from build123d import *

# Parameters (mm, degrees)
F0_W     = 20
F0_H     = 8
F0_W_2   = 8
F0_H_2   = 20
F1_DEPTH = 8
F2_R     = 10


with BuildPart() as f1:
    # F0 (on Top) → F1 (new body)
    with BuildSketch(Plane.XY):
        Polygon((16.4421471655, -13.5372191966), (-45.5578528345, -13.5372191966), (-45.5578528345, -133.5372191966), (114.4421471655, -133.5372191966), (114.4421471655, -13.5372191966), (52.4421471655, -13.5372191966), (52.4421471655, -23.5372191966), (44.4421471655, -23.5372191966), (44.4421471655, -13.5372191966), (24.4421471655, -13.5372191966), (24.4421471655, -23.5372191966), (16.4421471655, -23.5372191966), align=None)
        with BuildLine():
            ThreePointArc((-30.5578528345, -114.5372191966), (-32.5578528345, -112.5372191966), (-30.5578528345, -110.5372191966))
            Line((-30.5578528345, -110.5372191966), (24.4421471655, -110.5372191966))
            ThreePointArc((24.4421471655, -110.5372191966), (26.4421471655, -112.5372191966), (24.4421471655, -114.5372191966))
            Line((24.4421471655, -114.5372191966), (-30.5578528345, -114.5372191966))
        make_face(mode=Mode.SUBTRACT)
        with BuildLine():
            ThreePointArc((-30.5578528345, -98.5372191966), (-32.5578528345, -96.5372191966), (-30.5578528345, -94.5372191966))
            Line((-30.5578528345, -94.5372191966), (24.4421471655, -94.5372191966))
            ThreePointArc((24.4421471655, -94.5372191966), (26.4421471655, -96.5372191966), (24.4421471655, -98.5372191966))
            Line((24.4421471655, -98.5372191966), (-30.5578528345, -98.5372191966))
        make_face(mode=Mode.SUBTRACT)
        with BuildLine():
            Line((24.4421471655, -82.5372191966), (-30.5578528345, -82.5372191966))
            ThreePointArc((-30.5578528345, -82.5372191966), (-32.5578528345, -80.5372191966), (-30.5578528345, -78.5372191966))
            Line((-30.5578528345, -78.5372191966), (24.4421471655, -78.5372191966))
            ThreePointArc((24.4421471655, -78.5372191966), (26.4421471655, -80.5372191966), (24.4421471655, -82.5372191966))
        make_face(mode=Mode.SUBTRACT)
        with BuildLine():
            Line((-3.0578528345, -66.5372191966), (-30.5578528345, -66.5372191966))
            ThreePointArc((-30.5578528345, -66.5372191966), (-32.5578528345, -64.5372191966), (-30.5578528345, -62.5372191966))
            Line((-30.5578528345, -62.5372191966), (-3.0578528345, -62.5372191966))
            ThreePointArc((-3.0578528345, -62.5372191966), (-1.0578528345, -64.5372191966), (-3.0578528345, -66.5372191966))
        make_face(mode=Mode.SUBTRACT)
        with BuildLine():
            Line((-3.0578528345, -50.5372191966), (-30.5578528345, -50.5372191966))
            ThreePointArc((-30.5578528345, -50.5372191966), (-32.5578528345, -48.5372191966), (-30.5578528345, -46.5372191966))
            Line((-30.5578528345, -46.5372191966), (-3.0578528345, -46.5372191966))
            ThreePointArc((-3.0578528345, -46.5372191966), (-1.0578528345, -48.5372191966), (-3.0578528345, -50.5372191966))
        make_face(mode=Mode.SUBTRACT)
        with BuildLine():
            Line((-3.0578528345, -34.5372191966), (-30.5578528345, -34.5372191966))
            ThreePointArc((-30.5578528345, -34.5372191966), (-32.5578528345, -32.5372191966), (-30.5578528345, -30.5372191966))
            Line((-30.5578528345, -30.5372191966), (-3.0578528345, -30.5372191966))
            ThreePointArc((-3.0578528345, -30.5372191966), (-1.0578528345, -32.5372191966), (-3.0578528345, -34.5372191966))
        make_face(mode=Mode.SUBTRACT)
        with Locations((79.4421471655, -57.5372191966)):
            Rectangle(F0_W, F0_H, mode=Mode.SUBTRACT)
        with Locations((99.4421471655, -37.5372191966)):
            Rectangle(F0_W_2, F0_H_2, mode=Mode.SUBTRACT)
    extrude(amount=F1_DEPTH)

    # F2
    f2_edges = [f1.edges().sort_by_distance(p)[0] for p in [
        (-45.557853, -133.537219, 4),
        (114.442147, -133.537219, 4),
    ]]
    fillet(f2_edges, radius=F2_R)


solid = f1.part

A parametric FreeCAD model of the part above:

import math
import FreeCAD as App
import Part
import Sketcher

V = App.Vector


def edges_at(feature, points):
    """Names of the edges that pass closest to the given points."""
    edges = feature.Shape.Edges
    near = lambda p: min(range(len(edges)), key=lambda i: edges[i].distToShape(Part.Vertex(*p))[0])
    return sorted({f"Edge{near(p) + 1}" for p in points})

doc = App.newDocument("Part")
params = doc.addObject("Spreadsheet::Sheet", "Params")
for row, (alias, value) in enumerate([
    ("sketch1_radius", "2 mm"),
    ("sketch1_width", "62 mm"),
    ("sketch1_width2", "160 mm"),
    ("sketch1_width3", "8 mm"),
    ("sketch1_width4", "55 mm"),
    ("pad1_length", "8 mm"),
    ("fillet_radius", "10 mm"),
], start=1):
    params.set(f"A{row}", alias)
    params.set(f"B{row}", "=" + value)
    params.setAlias(f"B{row}", alias)

body = doc.addObject("PartDesign::Body", "Body")

# Sketch on XY plane
sketch1 = body.newObject("Sketcher::SketchObject", "Sketch")
sketch1.AttachmentSupport = (doc.getObject("XY_Plane"), [""])
sketch1.MapMode = "FlatFace"
sketch1.addGeometry(Part.LineSegment(V(16.442147, -13.537219, 0), V(-45.557853, -13.537219, 0)), False)
sketch1.addGeometry(Part.LineSegment(V(-45.557853, -13.537219, 0), V(-45.557853, -133.537219, 0)), False)
sketch1.addGeometry(Part.LineSegment(V(-45.557853, -133.537219, 0), V(114.442147, -133.537219, 0)), False)
sketch1.addGeometry(Part.LineSegment(V(114.442147, -133.537219, 0), V(114.442147, -13.537219, 0)), False)
sketch1.addGeometry(Part.LineSegment(V(114.442147, -13.537219, 0), V(52.442147, -13.537219, 0)), False)
sketch1.addGeometry(Part.LineSegment(V(52.442147, -13.537219, 0), V(52.442147, -23.537219, 0)), False)
sketch1.addGeometry(Part.LineSegment(V(52.442147, -23.537219, 0), V(44.442147, -23.537219, 0)), False)
sketch1.addGeometry(Part.LineSegment(V(44.442147, -23.537219, 0), V(44.442147, -13.537219, 0)), False)
sketch1.addGeometry(Part.LineSegment(V(44.442147, -13.537219, 0), V(24.442147, -13.537219, 0)), False)
sketch1.addGeometry(Part.LineSegment(V(24.442147, -13.537219, 0), V(24.442147, -23.537219, 0)), False)
sketch1.addGeometry(Part.LineSegment(V(24.442147, -23.537219, 0), V(16.442147, -23.537219, 0)), False)
sketch1.addGeometry(Part.LineSegment(V(16.442147, -23.537219, 0), V(16.442147, -13.537219, 0)), False)
sketch1.addGeometry(Part.LineSegment(V(24.442147, -114.537219, 0), V(-30.557853, -114.537219, 0)), False)
sketch1.addGeometry(Part.ArcOfCircle(Part.Circle(V(-30.557853, -112.537219, 0), V(0, 0, 1), 2), math.radians(90), math.radians(270)), False)
sketch1.addGeometry(Part.LineSegment(V(-30.557853, -110.537219, 0), V(24.442147, -110.537219, 0)), False)
sketch1.addGeometry(Part.ArcOfCircle(Part.Circle(V(24.442147, -112.537219, 0), V(0, 0, 1), 2), math.radians(-90), math.radians(90)), False)
sketch1.addGeometry(Part.LineSegment(V(24.442147, -98.537219, 0), V(-30.557853, -98.537219, 0)), False)
sketch1.addGeometry(Part.ArcOfCircle(Part.Circle(V(-30.557853, -96.537219, 0), V(0, 0, 1), 2), math.radians(90), math.radians(270)), False)
sketch1.addGeometry(Part.LineSegment(V(-30.557853, -94.537219, 0), V(24.442147, -94.537219, 0)), False)
sketch1.addGeometry(Part.ArcOfCircle(Part.Circle(V(24.442147, -96.537219, 0), V(0, 0, 1), 2), math.radians(-90), math.radians(90)), False)
sketch1.addGeometry(Part.ArcOfCircle(Part.Circle(V(24.442147, -80.537219, 0), V(0, 0, 1), 2), math.radians(-90), math.radians(90)), False)
sketch1.addGeometry(Part.LineSegment(V(24.442147, -82.537219, 0), V(-30.557853, -82.537219, 0)), False)
sketch1.addGeometry(Part.ArcOfCircle(Part.Circle(V(-30.557853, -80.537219, 0), V(0, 0, 1), 2), math.radians(90), math.radians(270)), False)
sketch1.addGeometry(Part.LineSegment(V(-30.557853, -78.537219, 0), V(24.442147, -78.537219, 0)), False)
sketch1.addGeometry(Part.ArcOfCircle(Part.Circle(V(-3.057853, -64.537219, 0), V(0, 0, 1), 2), math.radians(-90), math.radians(90)), False)
sketch1.addGeometry(Part.LineSegment(V(-3.057853, -66.537219, 0), V(-30.557853, -66.537219, 0)), False)
sketch1.addGeometry(Part.ArcOfCircle(Part.Circle(V(-30.557853, -64.537219, 0), V(0, 0, 1), 2), math.radians(90), math.radians(270)), False)
sketch1.addGeometry(Part.LineSegment(V(-30.557853, -62.537219, 0), V(-3.057853, -62.537219, 0)), False)
sketch1.addGeometry(Part.ArcOfCircle(Part.Circle(V(-3.057853, -48.537219, 0), V(0, 0, 1), 2), math.radians(-90), math.radians(90)), False)
sketch1.addGeometry(Part.LineSegment(V(-3.057853, -50.537219, 0), V(-30.557853, -50.537219, 0)), False)
sketch1.addGeometry(Part.ArcOfCircle(Part.Circle(V(-30.557853, -48.537219, 0), V(0, 0, 1), 2), math.radians(90), math.radians(270)), False)
sketch1.addGeometry(Part.LineSegment(V(-30.557853, -46.537219, 0), V(-3.057853, -46.537219, 0)), False)
sketch1.addGeometry(Part.ArcOfCircle(Part.Circle(V(-3.057853, -32.537219, 0), V(0, 0, 1), 2), math.radians(-90), math.radians(90)), False)
sketch1.addGeometry(Part.LineSegment(V(-3.057853, -34.537219, 0), V(-30.557853, -34.537219, 0)), False)
sketch1.addGeometry(Part.ArcOfCircle(Part.Circle(V(-30.557853, -32.537219, 0), V(0, 0, 1), 2), math.radians(90), math.radians(270)), False)
sketch1.addGeometry(Part.LineSegment(V(-30.557853, -30.537219, 0), V(-3.057853, -30.537219, 0)), False)
sketch1.addGeometry(Part.LineSegment(V(89.442147, -61.537219, 0), V(69.442147, -61.537219, 0)), False)
sketch1.addGeometry(Part.LineSegment(V(69.442147, -61.537219, 0), V(69.442147, -53.537219, 0)), False)
sketch1.addGeometry(Part.LineSegment(V(69.442147, -53.537219, 0), V(89.442147, -53.537219, 0)), False)
sketch1.addGeometry(Part.LineSegment(V(89.442147, -53.537219, 0), V(89.442147, -61.537219, 0)), False)
sketch1.addGeometry(Part.LineSegment(V(103.442147, -47.537219, 0), V(95.442147, -47.537219, 0)), False)
sketch1.addGeometry(Part.LineSegment(V(95.442147, -47.537219, 0), V(95.442147, -27.537219, 0)), False)
sketch1.addGeometry(Part.LineSegment(V(95.442147, -27.537219, 0), V(103.442147, -27.537219, 0)), False)
sketch1.addGeometry(Part.LineSegment(V(103.442147, -27.537219, 0), V(103.442147, -47.537219, 0)), False)
sketch1.addConstraint(Sketcher.Constraint("Coincident", 0, 2, 1, 1))
sketch1.addConstraint(Sketcher.Constraint("Coincident", 1, 2, 2, 1))
sketch1.addConstraint(Sketcher.Constraint("Coincident", 2, 2, 3, 1))
sketch1.addConstraint(Sketcher.Constraint("Coincident", 3, 2, 4, 1))
sketch1.addConstraint(Sketcher.Constraint("Coincident", 4, 2, 5, 1))
sketch1.addConstraint(Sketcher.Constraint("Coincident", 5, 2, 6, 1))
sketch1.addConstraint(Sketcher.Constraint("Coincident", 6, 2, 7, 1))
sketch1.addConstraint(Sketcher.Constraint("Coincident", 7, 2, 8, 1))
sketch1.addConstraint(Sketcher.Constraint("Coincident", 8, 2, 9, 1))
sketch1.addConstraint(Sketcher.Constraint("Coincident", 9, 2, 10, 1))
sketch1.addConstraint(Sketcher.Constraint("Coincident", 10, 2, 11, 1))
sketch1.addConstraint(Sketcher.Constraint("Coincident", 11, 2, 0, 1))
sketch1.addConstraint(Sketcher.Constraint("Tangent", 12, 2, 13, 2))
sketch1.addConstraint(Sketcher.Constraint("Tangent", 13, 1, 14, 1))
sketch1.addConstraint(Sketcher.Constraint("Tangent", 14, 2, 15, 2))
sketch1.addConstraint(Sketcher.Constraint("Tangent", 15, 1, 12, 1))
sketch1.addConstraint(Sketcher.Constraint("Tangent", 16, 2, 17, 2))
sketch1.addConstraint(Sketcher.Constraint("Tangent", 17, 1, 18, 1))
sketch1.addConstraint(Sketcher.Constraint("Tangent", 18, 2, 19, 2))
sketch1.addConstraint(Sketcher.Constraint("Tangent", 19, 1, 16, 1))
sketch1.addConstraint(Sketcher.Constraint("Tangent", 20, 1, 21, 1))
sketch1.addConstraint(Sketcher.Constraint("Tangent", 21, 2, 22, 2))
sketch1.addConstraint(Sketcher.Constraint("Tangent", 22, 1, 23, 1))
sketch1.addConstraint(Sketcher.Constraint("Tangent", 23, 2, 20, 2))
sketch1.addConstraint(Sketcher.Constraint("Tangent", 24, 1, 25, 1))
sketch1.addConstraint(Sketcher.Constraint("Tangent", 25, 2, 26, 2))
sketch1.addConstraint(Sketcher.Constraint("Tangent", 26, 1, 27, 1))
sketch1.addConstraint(Sketcher.Constraint("Tangent", 27, 2, 24, 2))
sketch1.addConstraint(Sketcher.Constraint("Tangent", 28, 1, 29, 1))
sketch1.addConstraint(Sketcher.Constraint("Tangent", 29, 2, 30, 2))
sketch1.addConstraint(Sketcher.Constraint("Tangent", 30, 1, 31, 1))
sketch1.addConstraint(Sketcher.Constraint("Tangent", 31, 2, 28, 2))
sketch1.addConstraint(Sketcher.Constraint("Tangent", 32, 1, 33, 1))
sketch1.addConstraint(Sketcher.Constraint("Tangent", 33, 2, 34, 2))
sketch1.addConstraint(Sketcher.Constraint("Tangent", 34, 1, 35, 1))
sketch1.addConstraint(Sketcher.Constraint("Tangent", 35, 2, 32, 2))
sketch1.addConstraint(Sketcher.Constraint("Coincident", 36, 2, 37, 1))
sketch1.addConstraint(Sketcher.Constraint("Coincident", 37, 2, 38, 1))
sketch1.addConstraint(Sketcher.Constraint("Coincident", 38, 2, 39, 1))
sketch1.addConstraint(Sketcher.Constraint("Coincident", 39, 2, 36, 1))
sketch1.addConstraint(Sketcher.Constraint("Coincident", 40, 2, 41, 1))
sketch1.addConstraint(Sketcher.Constraint("Coincident", 41, 2, 42, 1))
sketch1.addConstraint(Sketcher.Constraint("Coincident", 42, 2, 43, 1))
sketch1.addConstraint(Sketcher.Constraint("Coincident", 43, 2, 40, 1))
sketch1.addConstraint(Sketcher.Constraint("Horizontal", 0))
sketch1.addConstraint(Sketcher.Constraint("Vertical", 1))
sketch1.addConstraint(Sketcher.Constraint("Horizontal", 2))
sketch1.addConstraint(Sketcher.Constraint("Vertical", 3))
sketch1.addConstraint(Sketcher.Constraint("Horizontal", 4))
sketch1.addConstraint(Sketcher.Constraint("Vertical", 5))
sketch1.addConstraint(Sketcher.Constraint("Horizontal", 6))
sketch1.addConstraint(Sketcher.Constraint("Vertical", 7))
sketch1.addConstraint(Sketcher.Constraint("Horizontal", 8))
sketch1.addConstraint(Sketcher.Constraint("Vertical", 9))
sketch1.addConstraint(Sketcher.Constraint("Horizontal", 10))
sketch1.addConstraint(Sketcher.Constraint("Vertical", 11))
sketch1.addConstraint(Sketcher.Constraint("Horizontal", 12))
sketch1.addConstraint(Sketcher.Constraint("Horizontal", 14))
sketch1.addConstraint(Sketcher.Constraint("Horizontal", 16))
sketch1.addConstraint(Sketcher.Constraint("Horizontal", 18))
sketch1.addConstraint(Sketcher.Constraint("Horizontal", 21))
sketch1.addConstraint(Sketcher.Constraint("Horizontal", 23))
sketch1.addConstraint(Sketcher.Constraint("Horizontal", 25))
sketch1.addConstraint(Sketcher.Constraint("Horizontal", 27))
sketch1.addConstraint(Sketcher.Constraint("Horizontal", 29))
sketch1.addConstraint(Sketcher.Constraint("Horizontal", 31))
sketch1.addConstraint(Sketcher.Constraint("Horizontal", 33))
sketch1.addConstraint(Sketcher.Constraint("Horizontal", 35))
sketch1.addConstraint(Sketcher.Constraint("Horizontal", 36))
sketch1.addConstraint(Sketcher.Constraint("Vertical", 37))
sketch1.addConstraint(Sketcher.Constraint("Horizontal", 38))
sketch1.addConstraint(Sketcher.Constraint("Vertical", 39))
sketch1.addConstraint(Sketcher.Constraint("Horizontal", 40))
sketch1.addConstraint(Sketcher.Constraint("Vertical", 41))
sketch1.addConstraint(Sketcher.Constraint("Horizontal", 42))
sketch1.addConstraint(Sketcher.Constraint("Vertical", 43))
sketch1.addConstraint(Sketcher.Constraint("Equal", 15, 17))
sketch1.addConstraint(Sketcher.Constraint("Equal", 19, 20))
sketch1.addConstraint(Sketcher.Constraint("Equal", 22, 24))
sketch1.addConstraint(Sketcher.Constraint("Equal", 26, 28))
sketch1.addConstraint(Sketcher.Constraint("Equal", 30, 32))
sketch1.addConstraint(Sketcher.Constraint("Horizontal", 0, 2, 3, 2))
sketch1.addConstraint(Sketcher.Constraint("Horizontal", 4, 2, 7, 2))
sketch1.addConstraint(Sketcher.Constraint("Horizontal", 6, 2, 9, 2))
sketch1.addConstraint(Sketcher.Constraint("Vertical", 13, 3, 17, 3))
sketch1.addConstraint(Sketcher.Constraint("Vertical", 15, 3, 19, 3))
sketch1.addConstraint(Sketcher.Constraint("Vertical", 19, 3, 20, 3))
sketch1.addConstraint(Sketcher.Constraint("Vertical", 17, 3, 22, 3))
sketch1.addConstraint(Sketcher.Constraint("Vertical", 22, 3, 26, 3))
sketch1.addConstraint(Sketcher.Constraint("Vertical", 24, 3, 28, 3))
sketch1.addConstraint(Sketcher.Constraint("Vertical", 26, 3, 30, 3))
sketch1.addConstraint(Sketcher.Constraint("Vertical", 28, 3, 32, 3))
sketch1.addConstraint(Sketcher.Constraint("Vertical", 30, 3, 34, 3))
sketch1.addConstraint(Sketcher.Constraint("Vertical", 20, 3, 8, 2))
sketch1.addConstraint(Sketcher.Constraint("Equal", 0, 4))
sketch1.addConstraint(Sketcher.Constraint("Equal", 6, 10))
sketch1.addConstraint(Sketcher.Constraint("Equal", 8, 36))
sketch1.addConstraint(Sketcher.Constraint("Equal", 10, 40))
sketch1.addConstraint(Sketcher.Constraint("Equal", 42, 37))
sketch1.addConstraint(Sketcher.Constraint("Equal", 38, 41))
sketch1.addConstraint(Sketcher.Constraint("Radius", 13, 2.0))
sketch1.addConstraint(Sketcher.Constraint("DistanceX", 0, 2, 0, 1, 62.0))
sketch1.addConstraint(Sketcher.Constraint("DistanceX", 2, 1, 2, 2, 160.0))
sketch1.addConstraint(Sketcher.Constraint("DistanceX", 6, 2, 6, 1, 8.0))
sketch1.addConstraint(Sketcher.Constraint("DistanceX", 12, 2, 12, 1, 55.0))
sketch1.addConstraint(Sketcher.Constraint("DistanceY", 1, 2, 1, 1, 120.0))
sketch1.addConstraint(Sketcher.Constraint("DistanceY", 5, 2, 5, 1, 10.0))
sketch1.addConstraint(Sketcher.Constraint("DistanceX", 25, 2, 25, 1, 27.5))
sketch1.addConstraint(Sketcher.Constraint("DistanceY", 13, 3, 17, 3, 16.0))
sketch1.addConstraint(Sketcher.Constraint("DistanceY", 19, 3, 20, 3, 16.0))
sketch1.addConstraint(Sketcher.Constraint("DistanceY", 22, 3, 24, 3, 16.0))
sketch1.addConstraint(Sketcher.Constraint("DistanceY", 24, 3, 28, 3, 16.0))
sketch1.addConstraint(Sketcher.Constraint("DistanceY", 28, 3, 32, 3, 16.0))
sketch1.addConstraint(Sketcher.Constraint("DistanceY", 34, 3, 0, 2, 19.0))
sketch1.addConstraint(Sketcher.Constraint("DistanceX", 5, 2, 36, 2, 17.0))
sketch1.addConstraint(Sketcher.Constraint("DistanceY", 36, 2, 5, 2, 38.0))
sketch1.addConstraint(Sketcher.Constraint("DistanceX", 38, 2, 40, 2, 6.0))
sketch1.addConstraint(Sketcher.Constraint("DistanceY", 38, 2, 40, 2, 6.0))
sketch1.addConstraint(Sketcher.Constraint("DistanceY", 13, 3, -1, 1, 112.537219))
sketch1.addConstraint(Sketcher.Constraint("DistanceX", 13, 3, -1, 1, 30.557853))
sketch1.setExpression("Constraints[100]", "Params.sketch1_radius")
sketch1.setExpression("Constraints[101]", "Params.sketch1_width")
sketch1.setExpression("Constraints[102]", "Params.sketch1_width2")
sketch1.setExpression("Constraints[103]", "Params.sketch1_width3")
sketch1.setExpression("Constraints[104]", "Params.sketch1_width4")
pad1 = body.newObject("PartDesign::Pad", "Pad")
pad1.Profile = sketch1
pad1.setExpression("Length", "Params.pad1_length")
doc.recompute()

fillet = body.newObject("PartDesign::Fillet", "Fillet")
fillet.Base = (pad1, edges_at(pad1, [(-45.558, -133.537, 4), (114.442, -133.537, 4)]))
fillet.setExpression("Radius", "Params.fillet_radius")

doc.recompute()
